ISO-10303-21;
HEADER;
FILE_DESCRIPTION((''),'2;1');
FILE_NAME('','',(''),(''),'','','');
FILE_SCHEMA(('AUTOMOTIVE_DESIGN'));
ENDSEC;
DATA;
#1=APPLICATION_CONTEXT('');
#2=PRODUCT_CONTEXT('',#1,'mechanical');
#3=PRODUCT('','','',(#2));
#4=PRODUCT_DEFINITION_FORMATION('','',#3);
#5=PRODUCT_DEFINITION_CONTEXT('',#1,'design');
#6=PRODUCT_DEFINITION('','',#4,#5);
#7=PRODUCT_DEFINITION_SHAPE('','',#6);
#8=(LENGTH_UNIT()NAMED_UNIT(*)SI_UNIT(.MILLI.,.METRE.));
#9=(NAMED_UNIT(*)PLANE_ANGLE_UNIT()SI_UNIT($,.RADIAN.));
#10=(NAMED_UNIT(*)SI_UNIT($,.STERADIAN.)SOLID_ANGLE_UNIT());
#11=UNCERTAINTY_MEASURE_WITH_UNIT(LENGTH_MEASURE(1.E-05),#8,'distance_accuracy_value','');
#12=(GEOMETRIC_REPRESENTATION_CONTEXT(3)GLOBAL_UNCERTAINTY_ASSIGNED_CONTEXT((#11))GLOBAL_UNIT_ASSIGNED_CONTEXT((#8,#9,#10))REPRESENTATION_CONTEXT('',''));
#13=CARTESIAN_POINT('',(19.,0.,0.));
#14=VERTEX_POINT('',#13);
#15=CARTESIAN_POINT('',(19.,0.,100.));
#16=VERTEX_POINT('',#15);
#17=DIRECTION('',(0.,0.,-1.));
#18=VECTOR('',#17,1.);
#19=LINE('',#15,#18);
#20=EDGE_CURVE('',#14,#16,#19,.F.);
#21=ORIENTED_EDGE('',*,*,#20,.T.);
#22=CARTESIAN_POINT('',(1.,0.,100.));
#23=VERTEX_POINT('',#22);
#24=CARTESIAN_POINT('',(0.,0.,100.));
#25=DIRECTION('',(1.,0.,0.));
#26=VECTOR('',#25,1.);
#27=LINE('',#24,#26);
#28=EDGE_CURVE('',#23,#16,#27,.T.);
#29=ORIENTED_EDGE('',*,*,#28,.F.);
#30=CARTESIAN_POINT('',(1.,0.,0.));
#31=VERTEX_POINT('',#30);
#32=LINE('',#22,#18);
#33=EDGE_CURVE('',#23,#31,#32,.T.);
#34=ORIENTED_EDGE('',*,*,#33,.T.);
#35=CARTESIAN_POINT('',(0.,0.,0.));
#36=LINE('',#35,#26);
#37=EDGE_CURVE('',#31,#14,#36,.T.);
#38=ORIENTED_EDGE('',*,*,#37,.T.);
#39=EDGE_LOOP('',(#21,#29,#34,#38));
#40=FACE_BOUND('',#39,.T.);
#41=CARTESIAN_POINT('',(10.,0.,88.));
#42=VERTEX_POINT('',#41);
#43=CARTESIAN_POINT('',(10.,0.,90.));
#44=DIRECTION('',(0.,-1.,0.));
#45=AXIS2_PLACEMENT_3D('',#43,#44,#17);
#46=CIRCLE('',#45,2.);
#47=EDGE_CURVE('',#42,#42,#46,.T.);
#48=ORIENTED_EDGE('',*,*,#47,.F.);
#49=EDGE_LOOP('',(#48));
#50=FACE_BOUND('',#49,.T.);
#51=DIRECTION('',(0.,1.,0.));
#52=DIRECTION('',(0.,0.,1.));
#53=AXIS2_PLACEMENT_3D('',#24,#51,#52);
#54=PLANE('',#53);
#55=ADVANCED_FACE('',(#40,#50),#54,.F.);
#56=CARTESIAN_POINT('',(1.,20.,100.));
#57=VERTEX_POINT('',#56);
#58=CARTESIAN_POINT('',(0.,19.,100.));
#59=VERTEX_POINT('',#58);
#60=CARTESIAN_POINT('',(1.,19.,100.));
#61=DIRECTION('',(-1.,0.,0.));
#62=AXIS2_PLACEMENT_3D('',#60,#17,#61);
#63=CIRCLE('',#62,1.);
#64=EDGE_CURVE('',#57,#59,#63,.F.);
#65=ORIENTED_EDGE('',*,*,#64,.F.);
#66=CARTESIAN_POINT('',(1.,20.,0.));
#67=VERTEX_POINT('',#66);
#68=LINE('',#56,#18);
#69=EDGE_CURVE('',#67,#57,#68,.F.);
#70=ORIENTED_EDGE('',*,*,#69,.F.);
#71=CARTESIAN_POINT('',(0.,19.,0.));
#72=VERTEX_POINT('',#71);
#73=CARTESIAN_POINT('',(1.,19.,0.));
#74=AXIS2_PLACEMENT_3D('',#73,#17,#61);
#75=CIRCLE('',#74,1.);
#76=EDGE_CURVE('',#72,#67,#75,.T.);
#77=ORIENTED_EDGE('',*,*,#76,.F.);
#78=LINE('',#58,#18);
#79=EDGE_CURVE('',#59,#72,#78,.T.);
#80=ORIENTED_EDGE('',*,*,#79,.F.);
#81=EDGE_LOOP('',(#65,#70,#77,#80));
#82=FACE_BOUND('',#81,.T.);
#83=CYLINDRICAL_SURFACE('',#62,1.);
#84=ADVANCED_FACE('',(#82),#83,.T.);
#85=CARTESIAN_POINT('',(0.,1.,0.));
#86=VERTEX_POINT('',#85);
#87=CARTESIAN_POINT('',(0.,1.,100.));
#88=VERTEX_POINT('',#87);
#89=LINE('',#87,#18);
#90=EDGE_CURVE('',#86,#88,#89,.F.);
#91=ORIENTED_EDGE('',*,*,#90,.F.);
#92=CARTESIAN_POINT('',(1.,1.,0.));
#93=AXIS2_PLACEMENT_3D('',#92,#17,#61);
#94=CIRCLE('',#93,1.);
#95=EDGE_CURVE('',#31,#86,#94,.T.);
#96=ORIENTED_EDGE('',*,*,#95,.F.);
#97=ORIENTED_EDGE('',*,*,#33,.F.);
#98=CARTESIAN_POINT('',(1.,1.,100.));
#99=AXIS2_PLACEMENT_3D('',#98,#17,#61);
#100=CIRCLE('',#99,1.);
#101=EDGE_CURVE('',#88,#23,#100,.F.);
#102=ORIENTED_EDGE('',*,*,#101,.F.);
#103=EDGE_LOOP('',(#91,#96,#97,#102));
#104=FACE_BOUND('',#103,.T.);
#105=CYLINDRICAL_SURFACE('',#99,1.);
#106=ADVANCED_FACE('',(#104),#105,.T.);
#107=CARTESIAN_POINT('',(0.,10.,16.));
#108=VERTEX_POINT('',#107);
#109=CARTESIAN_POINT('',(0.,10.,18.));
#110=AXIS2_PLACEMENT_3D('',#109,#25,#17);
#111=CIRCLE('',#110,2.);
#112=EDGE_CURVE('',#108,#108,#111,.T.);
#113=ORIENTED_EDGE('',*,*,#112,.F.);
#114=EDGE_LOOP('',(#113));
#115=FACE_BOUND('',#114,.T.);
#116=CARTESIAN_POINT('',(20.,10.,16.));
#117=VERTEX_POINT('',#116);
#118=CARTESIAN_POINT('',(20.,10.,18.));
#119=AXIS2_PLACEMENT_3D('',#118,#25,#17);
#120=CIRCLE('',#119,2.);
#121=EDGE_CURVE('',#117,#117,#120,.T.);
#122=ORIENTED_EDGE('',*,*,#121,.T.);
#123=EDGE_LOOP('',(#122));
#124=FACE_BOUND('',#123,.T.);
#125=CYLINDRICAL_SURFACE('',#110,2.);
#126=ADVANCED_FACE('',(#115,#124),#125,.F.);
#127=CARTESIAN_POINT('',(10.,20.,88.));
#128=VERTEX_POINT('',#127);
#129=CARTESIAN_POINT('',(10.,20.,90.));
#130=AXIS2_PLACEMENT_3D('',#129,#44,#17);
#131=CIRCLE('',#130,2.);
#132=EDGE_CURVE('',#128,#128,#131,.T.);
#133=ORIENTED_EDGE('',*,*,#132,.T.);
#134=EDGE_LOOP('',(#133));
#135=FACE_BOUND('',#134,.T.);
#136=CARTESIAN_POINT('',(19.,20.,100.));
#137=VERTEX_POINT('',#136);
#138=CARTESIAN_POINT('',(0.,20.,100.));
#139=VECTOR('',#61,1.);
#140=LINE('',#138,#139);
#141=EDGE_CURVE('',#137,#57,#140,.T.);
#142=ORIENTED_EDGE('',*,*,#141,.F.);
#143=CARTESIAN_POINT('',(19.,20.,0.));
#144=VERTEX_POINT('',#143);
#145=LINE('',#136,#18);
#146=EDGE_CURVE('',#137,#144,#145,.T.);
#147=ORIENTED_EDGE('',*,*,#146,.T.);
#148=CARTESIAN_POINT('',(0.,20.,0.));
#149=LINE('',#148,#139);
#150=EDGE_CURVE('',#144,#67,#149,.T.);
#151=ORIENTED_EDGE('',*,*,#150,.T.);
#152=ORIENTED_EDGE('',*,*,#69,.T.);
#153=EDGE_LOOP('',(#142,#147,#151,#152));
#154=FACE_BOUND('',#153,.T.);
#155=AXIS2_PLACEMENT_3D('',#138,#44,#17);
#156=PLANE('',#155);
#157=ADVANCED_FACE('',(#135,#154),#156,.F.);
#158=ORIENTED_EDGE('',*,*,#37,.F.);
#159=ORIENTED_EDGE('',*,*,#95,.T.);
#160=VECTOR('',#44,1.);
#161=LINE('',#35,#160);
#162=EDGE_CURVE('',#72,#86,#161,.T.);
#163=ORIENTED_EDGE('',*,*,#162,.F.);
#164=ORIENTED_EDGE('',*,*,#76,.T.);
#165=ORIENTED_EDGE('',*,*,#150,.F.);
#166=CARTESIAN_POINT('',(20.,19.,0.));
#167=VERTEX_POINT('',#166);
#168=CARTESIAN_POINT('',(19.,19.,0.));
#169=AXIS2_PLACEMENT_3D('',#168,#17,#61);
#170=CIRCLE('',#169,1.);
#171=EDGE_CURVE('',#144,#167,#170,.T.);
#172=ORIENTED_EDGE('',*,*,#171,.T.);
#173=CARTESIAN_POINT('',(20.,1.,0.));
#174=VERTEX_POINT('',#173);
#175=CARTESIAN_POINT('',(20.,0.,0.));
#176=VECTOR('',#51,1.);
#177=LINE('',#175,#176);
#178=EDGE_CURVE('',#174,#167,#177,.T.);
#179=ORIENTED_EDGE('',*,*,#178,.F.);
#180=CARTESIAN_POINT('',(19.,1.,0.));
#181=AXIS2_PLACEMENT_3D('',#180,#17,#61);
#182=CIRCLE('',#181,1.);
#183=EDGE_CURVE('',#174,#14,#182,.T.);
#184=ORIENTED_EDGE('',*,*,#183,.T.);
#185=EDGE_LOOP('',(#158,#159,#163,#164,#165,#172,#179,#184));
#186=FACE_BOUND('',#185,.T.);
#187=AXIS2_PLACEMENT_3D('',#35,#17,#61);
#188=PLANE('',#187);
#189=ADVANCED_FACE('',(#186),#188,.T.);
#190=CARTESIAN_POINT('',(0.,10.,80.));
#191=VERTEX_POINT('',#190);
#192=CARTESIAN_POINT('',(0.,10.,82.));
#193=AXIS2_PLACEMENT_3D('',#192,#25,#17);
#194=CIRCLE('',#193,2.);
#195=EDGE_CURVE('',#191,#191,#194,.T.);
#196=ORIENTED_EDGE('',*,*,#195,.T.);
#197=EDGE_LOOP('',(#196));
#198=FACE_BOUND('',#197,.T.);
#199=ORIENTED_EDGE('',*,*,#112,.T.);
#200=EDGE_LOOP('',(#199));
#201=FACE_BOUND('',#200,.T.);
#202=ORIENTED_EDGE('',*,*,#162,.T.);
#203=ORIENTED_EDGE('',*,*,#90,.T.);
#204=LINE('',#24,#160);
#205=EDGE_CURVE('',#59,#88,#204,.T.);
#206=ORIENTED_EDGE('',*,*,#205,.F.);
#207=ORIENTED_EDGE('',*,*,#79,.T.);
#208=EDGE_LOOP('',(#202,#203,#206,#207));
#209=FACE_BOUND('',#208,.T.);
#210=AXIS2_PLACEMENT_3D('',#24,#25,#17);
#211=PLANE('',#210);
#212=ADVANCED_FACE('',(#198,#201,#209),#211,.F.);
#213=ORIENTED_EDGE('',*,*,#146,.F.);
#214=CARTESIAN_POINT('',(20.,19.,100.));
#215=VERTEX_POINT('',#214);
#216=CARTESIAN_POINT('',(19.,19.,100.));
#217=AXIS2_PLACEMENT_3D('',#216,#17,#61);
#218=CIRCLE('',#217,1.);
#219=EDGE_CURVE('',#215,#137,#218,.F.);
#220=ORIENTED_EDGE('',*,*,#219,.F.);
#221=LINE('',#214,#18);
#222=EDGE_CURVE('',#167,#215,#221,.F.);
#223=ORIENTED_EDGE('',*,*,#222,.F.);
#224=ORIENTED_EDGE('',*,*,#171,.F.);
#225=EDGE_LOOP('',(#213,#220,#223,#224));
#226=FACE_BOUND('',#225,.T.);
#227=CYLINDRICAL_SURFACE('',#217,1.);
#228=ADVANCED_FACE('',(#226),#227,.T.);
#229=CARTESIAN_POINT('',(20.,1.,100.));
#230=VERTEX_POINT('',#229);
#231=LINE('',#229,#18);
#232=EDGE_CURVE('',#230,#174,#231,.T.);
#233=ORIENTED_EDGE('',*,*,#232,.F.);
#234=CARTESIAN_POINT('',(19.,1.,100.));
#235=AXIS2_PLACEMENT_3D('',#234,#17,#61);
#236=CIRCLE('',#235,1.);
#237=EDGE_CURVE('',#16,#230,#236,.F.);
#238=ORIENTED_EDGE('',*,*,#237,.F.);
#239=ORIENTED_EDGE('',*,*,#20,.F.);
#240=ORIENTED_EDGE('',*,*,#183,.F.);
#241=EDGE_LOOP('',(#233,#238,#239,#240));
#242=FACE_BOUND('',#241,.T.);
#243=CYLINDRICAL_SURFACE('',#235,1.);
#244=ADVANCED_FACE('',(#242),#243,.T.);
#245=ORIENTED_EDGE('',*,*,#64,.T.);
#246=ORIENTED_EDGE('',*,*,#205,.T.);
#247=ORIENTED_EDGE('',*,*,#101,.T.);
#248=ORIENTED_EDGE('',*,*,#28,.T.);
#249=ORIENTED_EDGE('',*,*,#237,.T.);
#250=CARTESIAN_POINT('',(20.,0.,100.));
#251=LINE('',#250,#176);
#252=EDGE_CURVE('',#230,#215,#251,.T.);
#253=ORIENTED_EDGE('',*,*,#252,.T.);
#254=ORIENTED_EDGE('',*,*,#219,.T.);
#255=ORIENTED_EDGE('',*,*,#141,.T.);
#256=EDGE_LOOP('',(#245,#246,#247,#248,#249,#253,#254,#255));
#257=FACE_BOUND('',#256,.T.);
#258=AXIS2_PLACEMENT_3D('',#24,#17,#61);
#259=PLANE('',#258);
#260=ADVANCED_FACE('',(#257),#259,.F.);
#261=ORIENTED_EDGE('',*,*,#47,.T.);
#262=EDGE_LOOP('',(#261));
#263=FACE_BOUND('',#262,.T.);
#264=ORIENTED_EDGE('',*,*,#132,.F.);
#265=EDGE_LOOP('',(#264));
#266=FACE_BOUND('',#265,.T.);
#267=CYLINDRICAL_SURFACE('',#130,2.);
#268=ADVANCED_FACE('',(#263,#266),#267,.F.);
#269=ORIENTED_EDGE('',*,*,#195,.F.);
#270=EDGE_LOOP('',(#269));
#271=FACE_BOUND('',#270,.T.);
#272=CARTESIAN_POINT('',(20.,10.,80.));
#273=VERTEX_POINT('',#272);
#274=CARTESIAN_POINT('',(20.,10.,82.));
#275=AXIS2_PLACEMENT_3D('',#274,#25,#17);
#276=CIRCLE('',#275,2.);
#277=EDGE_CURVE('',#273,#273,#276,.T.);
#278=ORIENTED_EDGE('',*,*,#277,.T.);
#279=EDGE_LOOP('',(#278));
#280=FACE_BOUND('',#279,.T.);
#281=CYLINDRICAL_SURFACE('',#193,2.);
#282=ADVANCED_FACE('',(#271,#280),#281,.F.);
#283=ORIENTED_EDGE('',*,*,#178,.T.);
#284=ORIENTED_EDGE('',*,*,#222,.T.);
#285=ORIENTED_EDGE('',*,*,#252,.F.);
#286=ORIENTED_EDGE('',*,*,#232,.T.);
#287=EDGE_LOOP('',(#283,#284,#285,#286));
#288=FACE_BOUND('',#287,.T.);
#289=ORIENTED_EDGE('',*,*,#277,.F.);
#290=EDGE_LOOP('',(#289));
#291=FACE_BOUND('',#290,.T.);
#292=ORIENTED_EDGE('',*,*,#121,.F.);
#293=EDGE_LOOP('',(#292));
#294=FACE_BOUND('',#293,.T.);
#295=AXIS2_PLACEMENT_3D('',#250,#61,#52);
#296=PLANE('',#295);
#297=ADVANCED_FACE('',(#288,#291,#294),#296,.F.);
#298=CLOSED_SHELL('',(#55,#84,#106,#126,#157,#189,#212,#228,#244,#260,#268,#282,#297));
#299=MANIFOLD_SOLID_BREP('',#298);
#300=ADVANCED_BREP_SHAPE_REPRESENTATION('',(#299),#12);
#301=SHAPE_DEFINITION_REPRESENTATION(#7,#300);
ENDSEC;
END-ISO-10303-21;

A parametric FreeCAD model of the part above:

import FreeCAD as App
import Part
import Sketcher
from FreeCAD import Vector
Q = App.Units.Quantity


def edges_at(feature, points):
    """Names of the edges that pass closest to the given points."""
    edges = feature.Shape.Edges
    near = lambda p: min(range(len(edges)), key=lambda i: edges[i].distToShape(Part.Vertex(*p))[0])
    return sorted({f"Edge{near(p) + 1}" for p in points})

doc = App.newDocument("Part")
body = doc.addObject("PartDesign::Body", "Body")

# Sketch on XY plane
sketch1 = body.newObject("Sketcher::SketchObject", "Sketch")
sketch1.AttachmentSupport = (doc.getObject("XY_Plane"), [""])
sketch1.MapMode = "FlatFace"
sketch1.addGeometry([
    Part.LineSegment(Vector(0, 20, 0), Vector(0, 0, 0)),
    Part.LineSegment(Vector(0, 0, 0), Vector(20, 0, 0)),
    Part.LineSegment(Vector(20, 0, 0), Vector(20, 20, 0)),
    Part.LineSegment(Vector(20, 20, 0), Vector(0, 20, 0)),
], False)
sketch1.addConstraint([
    Sketcher.Constraint("Coincident", 0, 2, 1, 1),
    Sketcher.Constraint("Coincident", 1, 2, 2, 1),
    Sketcher.Constraint("Coincident", 2, 2, 3, 1),
    Sketcher.Constraint("Coincident", 3, 2, 0, 1),
    Sketcher.Constraint("Vertical", 0),
    Sketcher.Constraint("Horizontal", 1),
    Sketcher.Constraint("Vertical", 2),
    Sketcher.Constraint("Horizontal", 3),
    Sketcher.Constraint("Coincident", 0, 2, -1, 1),
    Sketcher.Constraint("Equal", 3, 0),
    Sketcher.Constraint("DistanceX", 1, 1, 1, 2, Q("20 mm")),
])
pad1 = body.newObject("PartDesign::Pad", "Pad")
pad1.Profile = sketch1
pad1.Length = 100

# Sketch on YZ plane
sketch2 = body.newObject("Sketcher::SketchObject", "Sketch001")
sketch2.AttachmentSupport = (doc.getObject("YZ_Plane"), [""])
sketch2.MapMode = "FlatFace"
sketch2.AttachmentOffset = App.Placement(Vector(0, 0, 20), App.Rotation())
sketch2.addGeometry([
    Part.Circle(Vector(10, 18, 0), Vector(0, 0, 1), 2),
    Part.Circle(Vector(10, 82, 0), Vector(0, 0, 1), 2),
], False)
sketch2.addConstraint([
    Sketcher.Constraint("Equal", 0, 1),
    Sketcher.Constraint("Vertical", 0, 3, 1, 3),
    Sketcher.Constraint("Diameter", 0, Q("4 mm")),
    Sketcher.Constraint("DistanceX", -1, 1, 0, 3, Q("10 mm")),
    Sketcher.Constraint("DistanceY", -1, 1, 0, 3, Q("18 mm")),
    Sketcher.Constraint("DistanceY", -1, 1, 1, 3, Q("82 mm")),
])
pocket1 = body.newObject("PartDesign::Pocket", "Pocket")
pocket1.Profile = sketch2
pocket1.Length = 20

# Sketch on XZ plane
sketch3 = body.newObject("Sketcher::SketchObject", "Sketch002")
sketch3.AttachmentSupport = (doc.getObject("XZ_Plane"), [""])
sketch3.MapMode = "FlatFace"
sketch3.addGeometry(Part.Circle(Vector(10, 90, 0), Vector(0, 0, 1), 2), False)
sketch3.addConstraint([
    Sketcher.Constraint("Diameter", 0, Q("4 mm")),
    Sketcher.Constraint("DistanceX", -1, 1, 0, 3, Q("10 mm")),
    Sketcher.Constraint("DistanceY", -1, 1, 0, 3, Q("90 mm")),
])
pocket2 = body.newObject("PartDesign::Pocket", "Pocket001")
pocket2.Profile = sketch3
pocket2.Length = 20
doc.recompute()

fillet = body.newObject("PartDesign::Fillet", "Fillet")
fillet.Base = (pocket2, edges_at(pocket2, [
    (0, 20, 50),
    (20, 20, 50),
    (20, 0, 50),
    (0, 0, 50),
]))
fillet.Radius = 1

doc.recompute()
